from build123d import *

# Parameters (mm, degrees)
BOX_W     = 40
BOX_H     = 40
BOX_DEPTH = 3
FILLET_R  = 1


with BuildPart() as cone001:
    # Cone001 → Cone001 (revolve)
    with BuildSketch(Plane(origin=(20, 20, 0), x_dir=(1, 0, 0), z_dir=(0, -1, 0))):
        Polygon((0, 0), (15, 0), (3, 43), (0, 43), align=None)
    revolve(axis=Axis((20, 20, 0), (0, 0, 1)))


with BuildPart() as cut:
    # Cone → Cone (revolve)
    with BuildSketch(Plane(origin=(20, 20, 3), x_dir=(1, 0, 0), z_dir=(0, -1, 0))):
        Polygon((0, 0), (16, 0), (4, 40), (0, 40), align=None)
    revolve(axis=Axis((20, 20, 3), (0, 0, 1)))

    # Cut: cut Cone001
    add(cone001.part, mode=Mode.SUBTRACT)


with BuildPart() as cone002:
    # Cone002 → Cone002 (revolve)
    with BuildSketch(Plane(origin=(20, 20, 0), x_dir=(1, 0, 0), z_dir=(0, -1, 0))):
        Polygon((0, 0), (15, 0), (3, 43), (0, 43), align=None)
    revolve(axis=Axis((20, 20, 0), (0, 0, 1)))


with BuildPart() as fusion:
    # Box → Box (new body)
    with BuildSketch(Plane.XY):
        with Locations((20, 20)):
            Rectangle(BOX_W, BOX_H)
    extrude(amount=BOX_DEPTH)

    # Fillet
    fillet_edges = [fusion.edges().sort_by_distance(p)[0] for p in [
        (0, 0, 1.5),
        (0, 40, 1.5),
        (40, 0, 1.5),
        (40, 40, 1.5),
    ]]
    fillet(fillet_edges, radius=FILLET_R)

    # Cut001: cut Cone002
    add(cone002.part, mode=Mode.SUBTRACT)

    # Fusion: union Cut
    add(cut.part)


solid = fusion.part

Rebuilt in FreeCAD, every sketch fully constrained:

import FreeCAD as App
import Part
import Sketcher
Q = App.Units.Quantity


def edges_at(feature, points):
    """Names of the edges that pass closest to the given points."""
    edges = feature.Shape.Edges
    near = lambda p: min(range(len(edges)), key=lambda i: edges[i].distToShape(Part.Vertex(*p))[0])
    return sorted({f"Edge{near(p) + 1}" for p in points})

doc = App.newDocument("Part")
body = doc.addObject("PartDesign::Body", "Body")

# Sketch on XZ plane
sketch1 = doc.addObject("Sketcher::SketchObject", "Sketch")
body.addObject(sketch1)
sketch1.AttachmentSupport = (doc.XZ_Plane, [""])
sketch1.MapMode = "FlatFace"
sketch1.AttachmentOffset = App.Placement(App.Vector(0, 0, -20), App.Rotation())
sketch1.addGeometry(Part.LineSegment(App.Vector(20, 0, 0), App.Vector(35, 0, 0)), False)
sketch1.addGeometry(Part.LineSegment(App.Vector(35, 0, 0), App.Vector(23, 43, 0)), False)
sketch1.addGeometry(Part.LineSegment(App.Vector(23, 43, 0), App.Vector(20, 43, 0)), False)
sketch1.addGeometry(Part.LineSegment(App.Vector(20, 43, 0), App.Vector(20, 0, 0)), False)
sketch1.addGeometry(Part.LineSegment(App.Vector(20, 0, 0), App.Vector(20, 43, 0)), True)  # axis
sketch1.addConstraint(Sketcher.Constraint("Coincident", 0, 2, 1, 1))
sketch1.addConstraint(Sketcher.Constraint("Coincident", 1, 2, 2, 1))
sketch1.addConstraint(Sketcher.Constraint("Coincident", 2, 2, 3, 1))
sketch1.addConstraint(Sketcher.Constraint("Coincident", 3, 2, 0, 1))
sketch1.addConstraint(Sketcher.Constraint("Horizontal", 0))
sketch1.addConstraint(Sketcher.Constraint("Horizontal", 2))
sketch1.addConstraint(Sketcher.Constraint("Vertical", 3))
sketch1.addConstraint(Sketcher.Constraint("Vertical", 4))
sketch1.addConstraint(Sketcher.Constraint("Coincident", 4, 1, 3, 2))
sketch1.addConstraint(Sketcher.Constraint("PointOnObject", 0, 2, -1))
sketch1.addConstraint(Sketcher.Constraint("Horizontal", 1, 2, 4, 2))
sketch1.addConstraint(Sketcher.Constraint("DistanceX", 0, 1, 0, 2, Q("15 mm")))
sketch1.addConstraint(Sketcher.Constraint("DistanceX", 2, 2, 2, 1, Q("3 mm")))
sketch1.addConstraint(Sketcher.Constraint("DistanceY", 3, 2, 3, 1, Q("43 mm")))
sketch1.addConstraint(Sketcher.Constraint("DistanceX", -1, 1, 0, 2, Q("35 mm")))
revolution = doc.addObject("PartDesign::Revolution", "Revolution")
body.addObject(revolution)
revolution.Profile = sketch1
revolution.ReferenceAxis = (sketch1, ["Axis0"])
revolution.Angle = 360
body2 = doc.addObject("PartDesign::Body", "Body001")

# Sketch on XZ plane
sketch2 = doc.addObject("Sketcher::SketchObject", "Sketch001")
body2.addObject(sketch2)
sketch2.AttachmentSupport = (doc.getObject("XZ_Plane001"), [""])
sketch2.MapMode = "FlatFace"
sketch2.AttachmentOffset = App.Placement(App.Vector(0, 0, -20), App.Rotation())
sketch2.addGeometry(Part.LineSegment(App.Vector(20, 3, 0), App.Vector(36, 3, 0)), False)
sketch2.addGeometry(Part.LineSegment(App.Vector(36, 3, 0), App.Vector(24, 43, 0)), False)
sketch2.addGeometry(Part.LineSegment(App.Vector(24, 43, 0), App.Vector(20, 43, 0)), False)
sketch2.addGeometry(Part.LineSegment(App.Vector(20, 43, 0), App.Vector(20, 3, 0)), False)
sketch2.addGeometry(Part.LineSegment(App.Vector(20, 3, 0), App.Vector(20, 43, 0)), True)  # axis
sketch2.addConstraint(Sketcher.Constraint("Coincident", 0, 2, 1, 1))
sketch2.addConstraint(Sketcher.Constraint("Coincident", 1, 2, 2, 1))
sketch2.addConstraint(Sketcher.Constraint("Coincident", 2, 2, 3, 1))
sketch2.addConstraint(Sketcher.Constraint("Coincident", 3, 2, 0, 1))
sketch2.addConstraint(Sketcher.Constraint("Horizontal", 0))
sketch2.addConstraint(Sketcher.Constraint("Horizontal", 2))
sketch2.addConstraint(Sketcher.Constraint("Vertical", 3))
sketch2.addConstraint(Sketcher.Constraint("Vertical", 4))
sketch2.addConstraint(Sketcher.Constraint("Coincident", 4, 1, 3, 2))
sketch2.addConstraint(Sketcher.Constraint("Horizontal", 1, 2, 4, 2))
sketch2.addConstraint(Sketcher.Constraint("DistanceX", 0, 1, 0, 2, Q("16 mm")))
sketch2.addConstraint(Sketcher.Constraint("DistanceX", 2, 2, 2, 1, Q("4 mm")))
sketch2.addConstraint(Sketcher.Constraint("DistanceY", 3, 2, 3, 1, Q("40 mm")))
sketch2.addConstraint(Sketcher.Constraint("DistanceX", -1, 1, 0, 2, Q("36 mm")))
sketch2.addConstraint(Sketcher.Constraint("DistanceY", -1, 1, 0, 2, Q("3 mm")))
revolution2 = doc.addObject("PartDesign::Revolution", "Revolution001")
body2.addObject(revolution2)
revolution2.Profile = sketch2
revolution2.ReferenceAxis = (sketch2, ["Axis0"])
revolution2.Angle = 360
doc.recompute()

boolean = doc.addObject("PartDesign::Boolean", "Boolean")
body2.addObject(boolean)
boolean.Type = "Cut"
boolean.addObjects([body])
body3 = doc.addObject("PartDesign::Body", "Body002")

# Sketch on XZ plane
sketch3 = doc.addObject("Sketcher::SketchObject", "Sketch002")
body3.addObject(sketch3)
sketch3.AttachmentSupport = (doc.getObject("XZ_Plane002"), [""])
sketch3.MapMode = "FlatFace"
sketch3.AttachmentOffset = App.Placement(App.Vector(0, 0, -20), App.Rotation())
sketch3.addGeometry(Part.LineSegment(App.Vector(20, 0, 0), App.Vector(35, 0, 0)), False)
sketch3.addGeometry(Part.LineSegment(App.Vector(35, 0, 0), App.Vector(23, 43, 0)), False)
sketch3.addGeometry(Part.LineSegment(App.Vector(23, 43, 0), App.Vector(20, 43, 0)), False)
sketch3.addGeometry(Part.LineSegment(App.Vector(20, 43, 0), App.Vector(20, 0, 0)), False)
sketch3.addGeometry(Part.LineSegment(App.Vector(20, 0, 0), App.Vector(20, 43, 0)), True)  # axis
sketch3.addConstraint(Sketcher.Constraint("Coincident", 0, 2, 1, 1))
sketch3.addConstraint(Sketcher.Constraint("Coincident", 1, 2, 2, 1))
sketch3.addConstraint(Sketcher.Constraint("Coincident", 2, 2, 3, 1))
sketch3.addConstraint(Sketcher.Constraint("Coincident", 3, 2, 0, 1))
sketch3.addConstraint(Sketcher.Constraint("Horizontal", 0))
sketch3.addConstraint(Sketcher.Constraint("Horizontal", 2))
sketch3.addConstraint(Sketcher.Constraint("Vertical", 3))
sketch3.addConstraint(Sketcher.Constraint("Vertical", 4))
sketch3.addConstraint(Sketcher.Constraint("Coincident", 4, 1, 3, 2))
sketch3.addConstraint(Sketcher.Constraint("PointOnObject", 0, 2, -1))
sketch3.addConstraint(Sketcher.Constraint("Horizontal", 1, 2, 4, 2))
sketch3.addConstraint(Sketcher.Constraint("DistanceX", 0, 1, 0, 2, Q("15 mm")))
sketch3.addConstraint(Sketcher.Constraint("DistanceX", 2, 2, 2, 1, Q("3 mm")))
sketch3.addConstraint(Sketcher.Constraint("DistanceY", 3, 2, 3, 1, Q("43 mm")))
sketch3.addConstraint(Sketcher.Constraint("DistanceX", -1, 1, 0, 2, Q("35 mm")))
revolution3 = doc.addObject("PartDesign::Revolution", "Revolution002")
body3.addObject(revolution3)
revolution3.Profile = sketch3
revolution3.ReferenceAxis = (sketch3, ["Axis0"])
revolution3.Angle = 360
body4 = doc.addObject("PartDesign::Body", "Body003")

# Sketch on XY plane
sketch4 = doc.addObject("Sketcher::SketchObject", "Sketch003")
body4.addObject(sketch4)
sketch4.AttachmentSupport = (doc.getObject("XY_Plane003"), [""])
sketch4.MapMode = "FlatFace"
sketch4.addGeometry(Part.LineSegment(App.Vector(0, 40, 0), App.Vector(0, 0, 0)), False)
sketch4.addGeometry(Part.LineSegment(App.Vector(0, 0, 0), App.Vector(40, 0, 0)), False)
sketch4.addGeometry(Part.LineSegment(App.Vector(40, 0, 0), App.Vector(40, 40, 0)), False)
sketch4.addGeometry(Part.LineSegment(App.Vector(40, 40, 0), App.Vector(0, 40, 0)), False)
sketch4.addConstraint(Sketcher.Constraint("Coincident", 0, 2, 1, 1))
sketch4.addConstraint(Sketcher.Constraint("Coincident", 1, 2, 2, 1))
sketch4.addConstraint(Sketcher.Constraint("Coincident", 2, 2, 3, 1))
sketch4.addConstraint(Sketcher.Constraint("Coincident", 3, 2, 0, 1))
sketch4.addConstraint(Sketcher.Constraint("Vertical", 0))
sketch4.addConstraint(Sketcher.Constraint("Horizontal", 1))
sketch4.addConstraint(Sketcher.Constraint("Vertical", 2))
sketch4.addConstraint(Sketcher.Constraint("Horizontal", 3))
sketch4.addConstraint(Sketcher.Constraint("Coincident", 0, 2, -1, 1))
sketch4.addConstraint(Sketcher.Constraint("Equal", 3, 0))
sketch4.addConstraint(Sketcher.Constraint("DistanceX", 1, 1, 1, 2, Q("40 mm")))
pad1 = doc.addObject("PartDesign::Pad", "Pad")
body4.addObject(pad1)
pad1.Profile = sketch4
pad1.Length = 3
doc.recompute()

fillet = doc.addObject("PartDesign::Fillet", "Fillet")
body4.addObject(fillet)
fillet.Base = (pad1, edges_at(pad1, [
    (0, 0, 1.5),
    (0, 40, 1.5),
    (40, 0, 1.5),
    (40, 40, 1.5),
]))
fillet.Radius = 1
doc.recompute()

boolean2 = doc.addObject("PartDesign::Boolean", "Boolean001")
body4.addObject(boolean2)
boolean2.Type = "Cut"
boolean2.addObjects([body3])
doc.recompute()

boolean3 = doc.addObject("PartDesign::Boolean", "Boolean002")
body4.addObject(boolean3)
boolean3.Type = "Fuse"
boolean3.addObjects([body2])

doc.recompute()
